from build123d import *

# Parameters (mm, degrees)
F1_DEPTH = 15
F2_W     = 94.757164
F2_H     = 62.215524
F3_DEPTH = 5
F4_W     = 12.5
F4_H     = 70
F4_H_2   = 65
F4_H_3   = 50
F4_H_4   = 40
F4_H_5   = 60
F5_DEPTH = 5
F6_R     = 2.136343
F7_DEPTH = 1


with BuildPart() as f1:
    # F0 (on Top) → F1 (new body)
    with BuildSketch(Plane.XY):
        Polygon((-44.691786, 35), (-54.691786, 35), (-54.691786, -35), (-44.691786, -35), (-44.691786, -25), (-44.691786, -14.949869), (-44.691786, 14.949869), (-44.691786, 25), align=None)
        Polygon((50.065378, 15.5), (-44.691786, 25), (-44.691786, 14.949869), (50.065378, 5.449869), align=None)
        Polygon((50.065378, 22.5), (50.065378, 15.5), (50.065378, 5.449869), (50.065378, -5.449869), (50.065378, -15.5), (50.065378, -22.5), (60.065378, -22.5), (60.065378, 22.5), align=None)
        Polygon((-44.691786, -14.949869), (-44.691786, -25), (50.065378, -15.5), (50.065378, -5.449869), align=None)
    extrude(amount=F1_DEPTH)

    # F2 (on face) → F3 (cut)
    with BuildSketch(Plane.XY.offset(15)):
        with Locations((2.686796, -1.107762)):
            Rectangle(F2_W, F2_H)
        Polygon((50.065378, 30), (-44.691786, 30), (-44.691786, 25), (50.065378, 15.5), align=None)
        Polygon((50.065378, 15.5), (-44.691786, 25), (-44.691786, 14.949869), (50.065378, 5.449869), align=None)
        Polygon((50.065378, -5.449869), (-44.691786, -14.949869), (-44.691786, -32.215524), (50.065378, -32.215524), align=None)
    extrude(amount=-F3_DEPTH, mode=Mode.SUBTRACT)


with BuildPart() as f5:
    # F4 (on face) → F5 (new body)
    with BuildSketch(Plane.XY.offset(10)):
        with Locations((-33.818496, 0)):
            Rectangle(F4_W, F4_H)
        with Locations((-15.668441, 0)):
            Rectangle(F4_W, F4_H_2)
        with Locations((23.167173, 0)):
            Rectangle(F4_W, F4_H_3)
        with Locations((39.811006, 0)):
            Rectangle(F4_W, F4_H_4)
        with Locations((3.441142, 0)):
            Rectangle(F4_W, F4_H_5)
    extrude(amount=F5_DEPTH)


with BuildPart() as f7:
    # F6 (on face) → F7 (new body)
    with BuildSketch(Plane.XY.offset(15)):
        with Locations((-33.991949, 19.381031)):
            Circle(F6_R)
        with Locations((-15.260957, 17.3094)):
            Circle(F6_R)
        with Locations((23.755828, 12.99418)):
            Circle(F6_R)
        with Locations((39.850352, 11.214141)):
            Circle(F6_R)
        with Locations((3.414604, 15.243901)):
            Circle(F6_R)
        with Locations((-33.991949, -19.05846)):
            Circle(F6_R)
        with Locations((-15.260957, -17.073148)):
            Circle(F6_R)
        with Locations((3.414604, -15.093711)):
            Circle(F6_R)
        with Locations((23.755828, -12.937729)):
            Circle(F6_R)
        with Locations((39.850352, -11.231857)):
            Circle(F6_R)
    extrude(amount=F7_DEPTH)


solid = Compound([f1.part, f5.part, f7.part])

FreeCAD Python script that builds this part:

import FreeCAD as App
import Part
import Sketcher

V = App.Vector

doc = App.newDocument("Part")
body = doc.addObject("PartDesign::Body", "Body")

# Sketch on XY plane
sketch1 = body.newObject("Sketcher::SketchObject", "Sketch")
sketch1.AttachmentSupport = (doc.getObject("XY_Plane"), [""])
sketch1.MapMode = "FlatFace"
sketch1.addGeometry([
    Part.LineSegment(V(-44.691786, 35, 0), V(-54.691786, 35, 0)),  # 0
    Part.LineSegment(V(-54.691786, 35, 0), V(-54.691786, -35, 0)),  # 1
    Part.LineSegment(V(-54.691786, -35, 0), V(-44.691786, -35, 0)),  # 2
    Part.LineSegment(V(-44.691786, -35, 0), V(-44.691786, -25, 0)),  # 3
    Part.LineSegment(V(-44.691786, -25, 0), V(50.065378, -15.5, 0)),  # 4
    Part.LineSegment(V(50.065378, -15.5, 0), V(50.065378, -22.5, 0)),  # 5
    Part.LineSegment(V(50.065378, -22.5, 0), V(60.065378, -22.5, 0)),  # 6
    Part.LineSegment(V(60.065378, -22.5, 0), V(60.065378, 22.5, 0)),  # 7
    Part.LineSegment(V(60.065378, 22.5, 0), V(50.065378, 22.5, 0)),  # 8
    Part.LineSegment(V(50.065378, 22.5, 0), V(50.065378, 15.5, 0)),  # 9
    Part.LineSegment(V(50.065378, 15.5, 0), V(-44.691786, 25, 0)),  # 10
    Part.LineSegment(V(-44.691786, 25, 0), V(-44.691786, 35, 0)),  # 11
    Part.LineSegment(V(-44.691786, -14.949869, 0), V(-44.691786, 14.949869, 0)),  # 12
    Part.LineSegment(V(-44.691786, 14.949869, 0), V(50.065378, 5.449869, 0)),  # 13
    Part.LineSegment(V(50.065378, 5.449869, 0), V(50.065378, -5.449869, 0)),  # 14
    Part.LineSegment(V(50.065378, -5.449869, 0), V(-44.691786, -14.949869, 0)),  # 15
], False)
sketch1.addConstraint([
    Sketcher.Constraint("Coincident", 0, 2, 1, 1),
    Sketcher.Constraint("Coincident", 1, 2, 2, 1),
    Sketcher.Constraint("Coincident", 2, 2, 3, 1),
    Sketcher.Constraint("Coincident", 3, 2, 4, 1),
    Sketcher.Constraint("Coincident", 4, 2, 5, 1),
    Sketcher.Constraint("Coincident", 5, 2, 6, 1),
    Sketcher.Constraint("Coincident", 6, 2, 7, 1),
    Sketcher.Constraint("Coincident", 7, 2, 8, 1),
    Sketcher.Constraint("Coincident", 8, 2, 9, 1),
    Sketcher.Constraint("Coincident", 9, 2, 10, 1),
    Sketcher.Constraint("Coincident", 10, 2, 11, 1),
    Sketcher.Constraint("Coincident", 11, 2, 0, 1),
    Sketcher.Constraint("Coincident", 12, 2, 13, 1),
    Sketcher.Constraint("Coincident", 13, 2, 14, 1),
    Sketcher.Constraint("Coincident", 14, 2, 15, 1),
    Sketcher.Constraint("Coincident", 15, 2, 12, 1),
    Sketcher.Constraint("Horizontal", 0),
    Sketcher.Constraint("Vertical", 1),
    Sketcher.Constraint("Horizontal", 2),
    Sketcher.Constraint("Vertical", 3),
    Sketcher.Constraint("Vertical", 5),
    Sketcher.Constraint("Horizontal", 6),
    Sketcher.Constraint("Vertical", 7),
    Sketcher.Constraint("Horizontal", 8),
    Sketcher.Constraint("Vertical", 9),
    Sketcher.Constraint("Vertical", 11),
    Sketcher.Constraint("Vertical", 12),
    Sketcher.Constraint("Vertical", 14),
    Sketcher.Constraint("Symmetric", 5, 2, 8, 2, -1),
    Sketcher.Constraint("Symmetric", 3, 2, 10, 2, -1),
    Sketcher.Constraint("Parallel", 10, 13),
    Sketcher.Constraint("Parallel", 4, 15),
    Sketcher.Constraint("Vertical", 11, 2, 12, 2),
    Sketcher.Constraint("Vertical", 9, 2, 13, 2),
    Sketcher.Constraint("Equal", 2, 6),
    Sketcher.Constraint("Equal", 8, 3),
    Sketcher.Constraint("Equal", 5, 9),
    Sketcher.Constraint("Equal", 3, 11),
    Sketcher.Constraint("DistanceX", 0, 2, 0, 1, 10.0),
    Sketcher.Constraint("DistanceY", 1, 2, 1, 1, 70.0),
    Sketcher.Constraint("DistanceY", 5, 2, 5, 1, 7.0),
    Sketcher.Constraint("DistanceY", 7, 1, 7, 2, 45.0),
    Sketcher.Constraint("Distance", 4, 95.232191),
    Sketcher.Constraint("DistanceY", 12, 1, 12, 2, 29.899738),
    Sketcher.Constraint("DistanceX", -1, 1, 4, 2, 50.065378),
    Sketcher.Constraint("DistanceY", -1, 1, 12, 2, 14.949869),
])
pad1 = body.newObject("PartDesign::Pad", "Pad")
pad1.Profile = sketch1
pad1.Length = 15

# Sketch on XY plane
sketch2 = body.newObject("Sketcher::SketchObject", "Sketch001")
sketch2.AttachmentSupport = (doc.getObject("XY_Plane"), [""])
sketch2.MapMode = "FlatFace"
sketch2.AttachmentOffset = App.Placement(V(0, 0, 15), App.Rotation())
sketch2.addGeometry([
    Part.LineSegment(V(-44.691786, -32.215524, 0), V(50.065378, -32.215524, 0)),
    Part.LineSegment(V(50.065378, -32.215524, 0), V(50.065378, 30, 0)),
    Part.LineSegment(V(50.065378, 30, 0), V(-44.691786, 30, 0)),
    Part.LineSegment(V(-44.691786, 30, 0), V(-44.691786, -32.215524, 0)),
], False)
sketch2.addConstraint([
    Sketcher.Constraint("Coincident", 0, 2, 1, 1),
    Sketcher.Constraint("Coincident", 1, 2, 2, 1),
    Sketcher.Constraint("Coincident", 2, 2, 3, 1),
    Sketcher.Constraint("Coincident", 3, 2, 0, 1),
    Sketcher.Constraint("Horizontal", 0),
    Sketcher.Constraint("Vertical", 1),
    Sketcher.Constraint("Horizontal", 2),
    Sketcher.Constraint("Vertical", 3),
    Sketcher.Constraint("DistanceY", -1, 1, 1, 2, 30.0),
    Sketcher.Constraint("DistanceX", 0, 1, 0, 2, 94.757164),
    Sketcher.Constraint("DistanceY", 1, 1, 1, 2, 62.215524),
    Sketcher.Constraint("DistanceX", -1, 1, 0, 2, 50.065378),
])
pocket1 = body.newObject("PartDesign::Pocket", "Pocket")
pocket1.Profile = sketch2
pocket1.Length = 5
body2 = doc.addObject("PartDesign::Body", "Body001")
body2.AllowCompound = True

# Sketch on XY plane
sketch3 = body2.newObject("Sketcher::SketchObject", "Sketch002")
sketch3.AttachmentSupport = (doc.getObject("XY_Plane001"), [""])
sketch3.MapMode = "FlatFace"
sketch3.AttachmentOffset = App.Placement(V(0, 0, 10), App.Rotation())
sketch3.addGeometry([
    Part.LineSegment(V(-40.068496, 35, 0), V(-40.068496, -35, 0)),  # 0
    Part.LineSegment(V(-40.068496, -35, 0), V(-27.568496, -35, 0)),  # 1
    Part.LineSegment(V(-27.568496, -35, 0), V(-27.568496, 35, 0)),  # 2
    Part.LineSegment(V(-27.568496, 35, 0), V(-40.068496, 35, 0)),  # 3
    Part.LineSegment(V(-21.918441, 32.5, 0), V(-21.918441, -32.5, 0)),  # 4
    Part.LineSegment(V(-21.918441, -32.5, 0), V(-9.418441, -32.5, 0)),  # 5
    Part.LineSegment(V(-9.418441, -32.5, 0), V(-9.418441, 32.5, 0)),  # 6
    Part.LineSegment(V(-9.418441, 32.5, 0), V(-21.918441, 32.5, 0)),  # 7
    Part.LineSegment(V(16.917173, 25, 0), V(16.917173, -25, 0)),  # 8
    Part.LineSegment(V(16.917173, -25, 0), V(29.417173, -25, 0)),  # 9
    Part.LineSegment(V(29.417173, -25, 0), V(29.417173, 25, 0)),  # 10
    Part.LineSegment(V(29.417173, 25, 0), V(16.917173, 25, 0)),  # 11
    Part.LineSegment(V(33.561006, 20, 0), V(33.561006, -20, 0)),  # 12
    Part.LineSegment(V(33.561006, -20, 0), V(46.061006, -20, 0)),  # 13
    Part.LineSegment(V(46.061006, -20, 0), V(46.061006, 20, 0)),  # 14
    Part.LineSegment(V(46.061006, 20, 0), V(33.561006, 20, 0)),  # 15
    Part.LineSegment(V(-2.808858, 30, 0), V(-2.808858, -30, 0)),  # 16
    Part.LineSegment(V(-2.808858, -30, 0), V(9.691142, -30, 0)),  # 17
    Part.LineSegment(V(9.691142, -30, 0), V(9.691142, 30, 0)),  # 18
    Part.LineSegment(V(9.691142, 30, 0), V(-2.808858, 30, 0)),  # 19
], False)
sketch3.addConstraint([
    Sketcher.Constraint("Coincident", 0, 2, 1, 1),
    Sketcher.Constraint("Coincident", 1, 2, 2, 1),
    Sketcher.Constraint("Coincident", 2, 2, 3, 1),
    Sketcher.Constraint("Coincident", 3, 2, 0, 1),
    Sketcher.Constraint("Coincident", 4, 2, 5, 1),
    Sketcher.Constraint("Coincident", 5, 2, 6, 1),
    Sketcher.Constraint("Coincident", 6, 2, 7, 1),
    Sketcher.Constraint("Coincident", 7, 2, 4, 1),
    Sketcher.Constraint("Coincident", 8, 2, 9, 1),
    Sketcher.Constraint("Coincident", 9, 2, 10, 1),
    Sketcher.Constraint("Coincident", 10, 2, 11, 1),
    Sketcher.Constraint("Coincident", 11, 2, 8, 1),
    Sketcher.Constraint("Coincident", 12, 2, 13, 1),
    Sketcher.Constraint("Coincident", 13, 2, 14, 1),
    Sketcher.Constraint("Coincident", 14, 2, 15, 1),
    Sketcher.Constraint("Coincident", 15, 2, 12, 1),
    Sketcher.Constraint("Coincident", 16, 2, 17, 1),
    Sketcher.Constraint("Coincident", 17, 2, 18, 1),
    Sketcher.Constraint("Coincident", 18, 2, 19, 1),
    Sketcher.Constraint("Coincident", 19, 2, 16, 1),
    Sketcher.Constraint("Vertical", 0),
    Sketcher.Constraint("Horizontal", 1),
    Sketcher.Constraint("Vertical", 2),
    Sketcher.Constraint("Horizontal", 3),
    Sketcher.Constraint("Vertical", 4),
    Sketcher.Constraint("Horizontal", 5),
    Sketcher.Constraint("Vertical", 6),
    Sketcher.Constraint("Horizontal", 7),
    Sketcher.Constraint("Vertical", 8),
    Sketcher.Constraint("Horizontal", 9),
    Sketcher.Constraint("Vertical", 10),
    Sketcher.Constraint("Horizontal", 11),
    Sketcher.Constraint("Vertical", 12),
    Sketcher.Constraint("Horizontal", 13),
    Sketcher.Constraint("Vertical", 14),
    Sketcher.Constraint("Horizontal", 15),
    Sketcher.Constraint("Vertical", 16),
    Sketcher.Constraint("Horizontal", 17),
    Sketcher.Constraint("Vertical", 18),
    Sketcher.Constraint("Horizontal", 19),
    Sketcher.Constraint("Equal", 3, 5),
    Sketcher.Constraint("Equal", 7, 9),
    Sketcher.Constraint("Equal", 11, 13),
    Sketcher.Constraint("Equal", 15, 17),
    Sketcher.Constraint("DistanceY", 0, 2, 0, 1, 70.0),
    Sketcher.Constraint("DistanceY", 4, 2, 4, 1, 65.0),
    Sketcher.Constraint("DistanceY", 8, 2, 8, 1, 50.0),
    Sketcher.Constraint("DistanceY", 12, 2, 12, 1, 40.0),
    Sketcher.Constraint("DistanceY", 16, 2, 16, 1, 60.0),
    Sketcher.Constraint("DistanceX", 1, 1, 1, 2, 12.5),
    Sketcher.Constraint("DistanceY", 0, 2, -1, 1, 35.0),
    Sketcher.Constraint("DistanceY", 8, 2, -1, 1, 25.0),
    Sketcher.Constraint("DistanceY", 12, 2, -1, 1, 20.0),
    Sketcher.Constraint("DistanceY", 16, 2, -1, 1, 30.0),
    Sketcher.Constraint("DistanceY", 4, 2, -1, 1, 32.5),
    Sketcher.Constraint("DistanceX", 4, 2, -1, 1, 21.918441),
    Sketcher.Constraint("DistanceX", -1, 1, 17, 2, 9.691142),
    Sketcher.Constraint("DistanceX", 1, 2, 8, 2, 44.485669),
    Sketcher.Constraint("DistanceX", 16, 2, 8, 2, 19.726031),
    Sketcher.Constraint("DistanceX", -1, 1, 12, 2, 33.561006),
])
pad2 = body2.newObject("PartDesign::Pad", "Pad001")
pad2.Profile = sketch3
pad2.Length = 5
body3 = doc.addObject("PartDesign::Body", "Body002")
body3.AllowCompound = True

# Sketch on XY plane
sketch4 = body3.newObject("Sketcher::SketchObject", "Sketch003")
sketch4.AttachmentSupport = (doc.getObject("XY_Plane002"), [""])
sketch4.MapMode = "FlatFace"
sketch4.AttachmentOffset = App.Placement(V(0, 0, 15), App.Rotation())
sketch4.addGeometry([
    Part.Circle(V(-33.991949, 19.381031, 0), V(0, 0, 1), 2.136343),  # 0
    Part.Circle(V(-15.260957, 17.3094, 0), V(0, 0, 1), 2.136343),  # 1
    Part.Circle(V(23.755828, 12.99418, 0), V(0, 0, 1), 2.136343),  # 2
    Part.Circle(V(39.850352, 11.214141, 0), V(0, 0, 1), 2.136343),  # 3
    Part.Circle(V(3.414604, 15.243901, 0), V(0, 0, 1), 2.136343),  # 4
    Part.Circle(V(-33.991949, -19.05846, 0), V(0, 0, 1), 2.136343),  # 5
    Part.Circle(V(-15.260957, -17.073148, 0), V(0, 0, 1), 2.136343),  # 6
    Part.Circle(V(3.414604, -15.093711, 0), V(0, 0, 1), 2.136343),  # 7
    Part.Circle(V(23.755828, -12.937729, 0), V(0, 0, 1), 2.136343),  # 8
    Part.Circle(V(39.850352, -11.231857, 0), V(0, 0, 1), 2.136343),  # 9
], False)
sketch4.addConstraint([
    Sketcher.Constraint("Equal", 0, 1),
    Sketcher.Constraint("Equal", 1, 2),
    Sketcher.Constraint("Equal", 2, 3),
    Sketcher.Constraint("Equal", 3, 4),
    Sketcher.Constraint("Equal", 4, 5),
    Sketcher.Constraint("Equal", 5, 6),
    Sketcher.Constraint("Equal", 6, 7),
    Sketcher.Constraint("Equal", 7, 8),
    Sketcher.Constraint("Equal", 8, 9),
    Sketcher.Constraint("Vertical", 0, 3, 5, 3),
    Sketcher.Constraint("Vertical", 1, 3, 6, 3),
    Sketcher.Constraint("Vertical", 4, 3, 7, 3),
    Sketcher.Constraint("Vertical", 2, 3, 8, 3),
    Sketcher.Constraint("Vertical", 3, 3, 9, 3),
    Sketcher.Constraint("Diameter", 0, 4.272686),
    Sketcher.Constraint("DistanceY", -1, 1, 1, 3, 17.3094),
    Sketcher.Constraint("DistanceY", -1, 1, 4, 3, 15.243901),
    Sketcher.Constraint("DistanceX", 0, 3, 3, 3, 73.842301),
    Sketcher.Constraint("DistanceY", 5, 3, 3, 3, 30.272601),
    Sketcher.Constraint("DistanceX", 0, 3, -1, 1, 33.991949),
    Sketcher.Constraint("DistanceY", -1, 1, 0, 3, 19.381031),
    Sketcher.Constraint("DistanceX", -1, 1, 2, 3, 23.755828),
    Sketcher.Constraint("DistanceY", -1, 1, 2, 3, 12.99418),
    Sketcher.Constraint("DistanceY", -1, 1, 3, 3, 11.214141),
    Sketcher.Constraint("DistanceY", 6, 3, -1, 1, 17.073148),
    Sketcher.Constraint("DistanceY", 7, 3, -1, 1, 15.093711),
    Sketcher.Constraint("DistanceY", 8, 3, -1, 1, 12.937729),
    Sketcher.Constraint("DistanceX", 1, 3, 3, 3, 55.111309),
    Sketcher.Constraint("DistanceX", 1, 3, 4, 3, 18.675561),
    Sketcher.Constraint("DistanceY", 8, 3, 9, 3, 1.705872),
])
pad3 = body3.newObject("PartDesign::Pad", "Pad002")
pad3.Profile = sketch4
pad3.Length = 1

doc.recompute()
